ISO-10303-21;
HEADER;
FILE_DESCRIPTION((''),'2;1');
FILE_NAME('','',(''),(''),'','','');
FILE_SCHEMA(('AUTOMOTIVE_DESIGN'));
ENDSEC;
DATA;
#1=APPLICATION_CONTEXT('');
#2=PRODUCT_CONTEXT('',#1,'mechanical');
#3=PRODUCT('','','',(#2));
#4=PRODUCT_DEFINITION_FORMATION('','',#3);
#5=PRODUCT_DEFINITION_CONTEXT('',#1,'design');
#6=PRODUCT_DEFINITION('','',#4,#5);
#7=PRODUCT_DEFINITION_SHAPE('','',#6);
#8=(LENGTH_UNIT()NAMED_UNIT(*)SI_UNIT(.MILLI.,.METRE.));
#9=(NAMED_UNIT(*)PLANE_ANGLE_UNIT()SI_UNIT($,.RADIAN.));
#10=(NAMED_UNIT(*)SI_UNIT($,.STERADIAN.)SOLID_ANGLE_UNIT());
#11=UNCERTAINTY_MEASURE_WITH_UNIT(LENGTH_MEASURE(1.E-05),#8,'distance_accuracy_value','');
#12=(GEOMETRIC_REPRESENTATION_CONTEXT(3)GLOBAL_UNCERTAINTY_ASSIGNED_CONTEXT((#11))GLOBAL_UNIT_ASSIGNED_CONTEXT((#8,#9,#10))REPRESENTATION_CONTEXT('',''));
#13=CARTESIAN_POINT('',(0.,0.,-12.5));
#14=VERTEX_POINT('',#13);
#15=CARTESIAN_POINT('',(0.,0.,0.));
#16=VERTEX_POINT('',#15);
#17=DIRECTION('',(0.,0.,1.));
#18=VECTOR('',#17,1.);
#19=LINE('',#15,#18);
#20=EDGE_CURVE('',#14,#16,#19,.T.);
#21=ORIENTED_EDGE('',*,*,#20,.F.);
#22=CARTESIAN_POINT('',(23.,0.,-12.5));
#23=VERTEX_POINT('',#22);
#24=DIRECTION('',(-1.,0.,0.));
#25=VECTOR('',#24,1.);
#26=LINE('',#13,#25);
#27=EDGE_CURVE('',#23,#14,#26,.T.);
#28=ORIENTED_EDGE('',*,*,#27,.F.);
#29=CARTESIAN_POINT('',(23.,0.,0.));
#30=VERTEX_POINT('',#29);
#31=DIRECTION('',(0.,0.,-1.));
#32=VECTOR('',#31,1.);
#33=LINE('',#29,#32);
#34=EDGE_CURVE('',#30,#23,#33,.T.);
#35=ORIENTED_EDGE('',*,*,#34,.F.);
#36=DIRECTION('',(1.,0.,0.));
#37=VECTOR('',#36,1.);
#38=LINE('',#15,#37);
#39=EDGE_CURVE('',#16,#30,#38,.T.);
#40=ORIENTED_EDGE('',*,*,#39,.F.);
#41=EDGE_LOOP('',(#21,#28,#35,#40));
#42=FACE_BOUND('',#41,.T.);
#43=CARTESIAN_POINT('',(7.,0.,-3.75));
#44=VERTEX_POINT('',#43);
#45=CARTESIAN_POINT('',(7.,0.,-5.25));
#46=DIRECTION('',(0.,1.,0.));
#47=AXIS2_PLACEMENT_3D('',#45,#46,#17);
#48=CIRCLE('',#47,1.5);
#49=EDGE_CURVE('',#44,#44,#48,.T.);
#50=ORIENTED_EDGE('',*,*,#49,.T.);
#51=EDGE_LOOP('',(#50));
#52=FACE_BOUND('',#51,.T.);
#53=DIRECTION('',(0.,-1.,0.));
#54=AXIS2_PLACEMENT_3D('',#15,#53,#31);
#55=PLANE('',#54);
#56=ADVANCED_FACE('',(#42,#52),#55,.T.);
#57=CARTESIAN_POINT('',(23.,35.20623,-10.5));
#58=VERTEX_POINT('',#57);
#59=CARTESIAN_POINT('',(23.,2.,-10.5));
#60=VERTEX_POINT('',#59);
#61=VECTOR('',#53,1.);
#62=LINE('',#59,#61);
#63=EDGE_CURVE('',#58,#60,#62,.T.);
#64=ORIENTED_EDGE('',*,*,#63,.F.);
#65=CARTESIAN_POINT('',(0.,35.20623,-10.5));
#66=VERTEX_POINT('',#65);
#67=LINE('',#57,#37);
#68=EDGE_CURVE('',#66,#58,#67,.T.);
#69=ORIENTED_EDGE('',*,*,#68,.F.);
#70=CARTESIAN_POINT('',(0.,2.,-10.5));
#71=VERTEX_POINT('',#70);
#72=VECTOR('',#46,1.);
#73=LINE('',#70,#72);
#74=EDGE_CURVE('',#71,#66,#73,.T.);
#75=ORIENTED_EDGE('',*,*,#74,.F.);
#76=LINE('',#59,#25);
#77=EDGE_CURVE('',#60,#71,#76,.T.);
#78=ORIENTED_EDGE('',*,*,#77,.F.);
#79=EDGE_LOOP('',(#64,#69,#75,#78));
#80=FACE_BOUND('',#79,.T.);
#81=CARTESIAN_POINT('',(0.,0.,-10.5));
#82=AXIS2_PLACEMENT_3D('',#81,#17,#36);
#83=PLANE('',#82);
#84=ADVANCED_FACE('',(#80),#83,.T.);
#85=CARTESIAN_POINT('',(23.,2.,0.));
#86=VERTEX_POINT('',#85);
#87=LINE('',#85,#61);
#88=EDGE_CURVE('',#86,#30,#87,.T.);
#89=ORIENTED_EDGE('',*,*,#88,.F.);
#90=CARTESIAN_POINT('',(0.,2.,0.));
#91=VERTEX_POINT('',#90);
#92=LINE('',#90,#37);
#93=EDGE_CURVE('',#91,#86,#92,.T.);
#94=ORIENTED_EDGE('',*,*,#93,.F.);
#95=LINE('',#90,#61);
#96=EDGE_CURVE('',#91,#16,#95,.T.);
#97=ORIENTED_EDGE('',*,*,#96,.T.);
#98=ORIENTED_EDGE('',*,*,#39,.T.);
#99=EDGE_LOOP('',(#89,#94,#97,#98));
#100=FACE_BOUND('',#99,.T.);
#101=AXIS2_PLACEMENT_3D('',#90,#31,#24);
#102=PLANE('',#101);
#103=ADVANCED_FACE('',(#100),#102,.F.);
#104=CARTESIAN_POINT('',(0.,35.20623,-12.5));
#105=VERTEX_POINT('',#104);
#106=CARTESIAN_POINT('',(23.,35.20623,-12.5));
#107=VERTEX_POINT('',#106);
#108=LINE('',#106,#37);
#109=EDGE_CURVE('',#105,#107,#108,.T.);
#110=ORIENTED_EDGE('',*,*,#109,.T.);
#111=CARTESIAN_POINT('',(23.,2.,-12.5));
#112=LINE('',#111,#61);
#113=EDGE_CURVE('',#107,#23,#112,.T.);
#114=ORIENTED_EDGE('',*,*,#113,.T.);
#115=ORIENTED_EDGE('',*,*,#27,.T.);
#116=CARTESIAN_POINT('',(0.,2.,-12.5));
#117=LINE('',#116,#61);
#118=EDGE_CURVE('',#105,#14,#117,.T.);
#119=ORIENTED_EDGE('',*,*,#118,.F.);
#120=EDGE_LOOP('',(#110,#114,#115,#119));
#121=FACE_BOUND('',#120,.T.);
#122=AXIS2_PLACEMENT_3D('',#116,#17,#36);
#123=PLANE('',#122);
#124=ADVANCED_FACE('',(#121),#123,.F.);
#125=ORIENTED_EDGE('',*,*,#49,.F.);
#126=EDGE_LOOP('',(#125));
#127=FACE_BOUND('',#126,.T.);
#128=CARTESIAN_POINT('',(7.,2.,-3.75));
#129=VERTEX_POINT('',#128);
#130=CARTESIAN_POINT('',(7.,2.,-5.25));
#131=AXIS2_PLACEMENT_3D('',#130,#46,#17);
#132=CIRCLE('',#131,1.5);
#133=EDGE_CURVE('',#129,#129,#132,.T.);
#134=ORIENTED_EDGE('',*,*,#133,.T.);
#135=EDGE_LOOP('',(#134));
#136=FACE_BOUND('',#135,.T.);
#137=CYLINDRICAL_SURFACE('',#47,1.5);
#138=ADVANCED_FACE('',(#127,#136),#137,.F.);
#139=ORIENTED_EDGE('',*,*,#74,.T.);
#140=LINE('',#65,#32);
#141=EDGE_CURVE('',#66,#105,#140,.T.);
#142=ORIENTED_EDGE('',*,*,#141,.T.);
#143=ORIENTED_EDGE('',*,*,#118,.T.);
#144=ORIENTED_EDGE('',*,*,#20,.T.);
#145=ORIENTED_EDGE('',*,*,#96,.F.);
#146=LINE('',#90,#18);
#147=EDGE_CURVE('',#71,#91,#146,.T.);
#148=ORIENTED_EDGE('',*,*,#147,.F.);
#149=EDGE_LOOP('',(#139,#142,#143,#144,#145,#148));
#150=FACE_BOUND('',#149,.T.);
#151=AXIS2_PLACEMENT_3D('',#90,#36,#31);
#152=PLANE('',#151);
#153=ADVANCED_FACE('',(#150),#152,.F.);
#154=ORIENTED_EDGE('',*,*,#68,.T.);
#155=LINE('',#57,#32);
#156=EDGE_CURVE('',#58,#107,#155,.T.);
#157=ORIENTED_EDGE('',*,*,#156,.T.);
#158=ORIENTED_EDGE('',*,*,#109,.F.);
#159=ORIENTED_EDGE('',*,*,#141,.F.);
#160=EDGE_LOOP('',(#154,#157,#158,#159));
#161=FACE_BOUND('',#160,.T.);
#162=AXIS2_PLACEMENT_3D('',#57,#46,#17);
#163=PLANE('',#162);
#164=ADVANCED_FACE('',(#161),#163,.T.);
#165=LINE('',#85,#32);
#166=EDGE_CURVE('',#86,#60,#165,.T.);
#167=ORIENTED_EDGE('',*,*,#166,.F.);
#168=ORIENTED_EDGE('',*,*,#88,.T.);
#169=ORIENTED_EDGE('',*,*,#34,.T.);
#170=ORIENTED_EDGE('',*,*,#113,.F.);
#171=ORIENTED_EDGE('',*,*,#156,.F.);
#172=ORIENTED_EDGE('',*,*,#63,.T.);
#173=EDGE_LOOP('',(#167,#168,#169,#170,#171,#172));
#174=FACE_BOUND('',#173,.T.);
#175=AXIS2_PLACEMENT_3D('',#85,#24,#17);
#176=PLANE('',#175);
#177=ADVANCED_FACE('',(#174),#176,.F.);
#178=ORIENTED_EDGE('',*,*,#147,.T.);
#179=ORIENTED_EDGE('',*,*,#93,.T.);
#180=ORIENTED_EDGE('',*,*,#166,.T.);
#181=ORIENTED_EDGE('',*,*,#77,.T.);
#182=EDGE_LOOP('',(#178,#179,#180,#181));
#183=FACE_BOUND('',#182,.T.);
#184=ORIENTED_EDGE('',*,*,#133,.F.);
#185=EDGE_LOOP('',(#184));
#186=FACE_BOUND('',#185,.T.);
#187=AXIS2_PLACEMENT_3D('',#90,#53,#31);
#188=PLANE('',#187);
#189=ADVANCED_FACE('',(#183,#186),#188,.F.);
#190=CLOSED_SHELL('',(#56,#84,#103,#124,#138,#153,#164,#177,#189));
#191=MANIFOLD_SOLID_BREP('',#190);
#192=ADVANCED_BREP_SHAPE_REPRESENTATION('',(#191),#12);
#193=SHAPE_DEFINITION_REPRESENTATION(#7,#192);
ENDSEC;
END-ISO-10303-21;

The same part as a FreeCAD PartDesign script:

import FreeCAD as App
import Part
import Sketcher

V = App.Vector


def add_polygon(sketch, points):
    """Adds a closed chain of lines whose ends are joined by coincident constraints."""
    first, n = sketch.GeometryCount, len(points)
    for a, b in zip(points, points[1:] + points[:1]):
        sketch.addGeometry(Part.LineSegment(App.Vector(*a, 0), App.Vector(*b, 0)), False)
    for i in range(n):
        sketch.addConstraint(Sketcher.Constraint("Coincident", first + i, 2, first + (i + 1) % n, 1))

doc = App.newDocument("Part")
body = doc.addObject("PartDesign::Body", "Body")

# Sketch on XZ plane
sketch1 = body.newObject("Sketcher::SketchObject", "Sketch")
sketch1.AttachmentSupport = (doc.getObject("XZ_Plane"), [""])
sketch1.MapMode = "FlatFace"
add_polygon(sketch1, [(0, -12), (0, 0), (23, 0), (23, -12)])  # lines 0-3
sketch1.addConstraint([
    Sketcher.Constraint("Vertical", 0),
    Sketcher.Constraint("Horizontal", 1),
    Sketcher.Constraint("Vertical", 2),
    Sketcher.Constraint("Horizontal", 3),
    Sketcher.Constraint("Coincident", 0, 2, -1, 1),
    Sketcher.Constraint("DistanceX", 1, 1, 1, 2, 23.0),
    Sketcher.Constraint("DistanceY", 0, 1, 0, 2, 12.5),
])
pad1 = body.newObject("PartDesign::Pad", "Pad")
pad1.Profile = sketch1
pad1.Length = 2
pad1.Reversed = True

# Sketch on XY plane
sketch2 = body.newObject("Sketcher::SketchObject", "Sketch001")
sketch2.AttachmentSupport = (doc.getObject("XY_Plane"), [""])
sketch2.MapMode = "FlatFace"
sketch2.AttachmentOffset = App.Placement(V(0, 0, -12.5), App.Rotation())
add_polygon(sketch2, [(23, 35), (23, 2), (0, 2), (0, 35)])  # lines 0-3
sketch2.addConstraint([
    Sketcher.Constraint("Vertical", 0),
    Sketcher.Constraint("Horizontal", 1),
    Sketcher.Constraint("Vertical", 2),
    Sketcher.Constraint("Horizontal", 3),
    Sketcher.Constraint("PointOnObject", 1, 2, -2),
    Sketcher.Constraint("DistanceX", 1, 2, 1, 1, 23.0),
    Sketcher.Constraint("DistanceY", -1, 1, 0, 2, 2.0),
    Sketcher.Constraint("DistanceY", 0, 2, 0, 1, 33.20623),
])
pad2 = body.newObject("PartDesign::Pad", "Pad001")
pad2.Profile = sketch2
pad2.Length = 2

# Sketch on XZ plane
sketch3 = body.newObject("Sketcher::SketchObject", "Sketch002")
sketch3.AttachmentSupport = (doc.getObject("XZ_Plane"), [""])
sketch3.MapMode = "FlatFace"
sketch3.AttachmentOffset = App.Placement(V(0, 0, -2), App.Rotation())
sketch3.addGeometry(Part.Circle(V(7, -5.2, 0), V(0, 0, 1), 1.5), False)
sketch3.addConstraint([
    Sketcher.Constraint("Diameter", 0, 3.0),
    Sketcher.Constraint("DistanceX", -1, 1, 0, 3, 7.0),
    Sketcher.Constraint("DistanceY", 0, 3, -1, 1, 5.25),
])
pocket1 = body.newObject("PartDesign::Pocket", "Pocket")
pocket1.Profile = sketch3
pocket1.Length = 2
pocket1.Reversed = True

doc.recompute()
